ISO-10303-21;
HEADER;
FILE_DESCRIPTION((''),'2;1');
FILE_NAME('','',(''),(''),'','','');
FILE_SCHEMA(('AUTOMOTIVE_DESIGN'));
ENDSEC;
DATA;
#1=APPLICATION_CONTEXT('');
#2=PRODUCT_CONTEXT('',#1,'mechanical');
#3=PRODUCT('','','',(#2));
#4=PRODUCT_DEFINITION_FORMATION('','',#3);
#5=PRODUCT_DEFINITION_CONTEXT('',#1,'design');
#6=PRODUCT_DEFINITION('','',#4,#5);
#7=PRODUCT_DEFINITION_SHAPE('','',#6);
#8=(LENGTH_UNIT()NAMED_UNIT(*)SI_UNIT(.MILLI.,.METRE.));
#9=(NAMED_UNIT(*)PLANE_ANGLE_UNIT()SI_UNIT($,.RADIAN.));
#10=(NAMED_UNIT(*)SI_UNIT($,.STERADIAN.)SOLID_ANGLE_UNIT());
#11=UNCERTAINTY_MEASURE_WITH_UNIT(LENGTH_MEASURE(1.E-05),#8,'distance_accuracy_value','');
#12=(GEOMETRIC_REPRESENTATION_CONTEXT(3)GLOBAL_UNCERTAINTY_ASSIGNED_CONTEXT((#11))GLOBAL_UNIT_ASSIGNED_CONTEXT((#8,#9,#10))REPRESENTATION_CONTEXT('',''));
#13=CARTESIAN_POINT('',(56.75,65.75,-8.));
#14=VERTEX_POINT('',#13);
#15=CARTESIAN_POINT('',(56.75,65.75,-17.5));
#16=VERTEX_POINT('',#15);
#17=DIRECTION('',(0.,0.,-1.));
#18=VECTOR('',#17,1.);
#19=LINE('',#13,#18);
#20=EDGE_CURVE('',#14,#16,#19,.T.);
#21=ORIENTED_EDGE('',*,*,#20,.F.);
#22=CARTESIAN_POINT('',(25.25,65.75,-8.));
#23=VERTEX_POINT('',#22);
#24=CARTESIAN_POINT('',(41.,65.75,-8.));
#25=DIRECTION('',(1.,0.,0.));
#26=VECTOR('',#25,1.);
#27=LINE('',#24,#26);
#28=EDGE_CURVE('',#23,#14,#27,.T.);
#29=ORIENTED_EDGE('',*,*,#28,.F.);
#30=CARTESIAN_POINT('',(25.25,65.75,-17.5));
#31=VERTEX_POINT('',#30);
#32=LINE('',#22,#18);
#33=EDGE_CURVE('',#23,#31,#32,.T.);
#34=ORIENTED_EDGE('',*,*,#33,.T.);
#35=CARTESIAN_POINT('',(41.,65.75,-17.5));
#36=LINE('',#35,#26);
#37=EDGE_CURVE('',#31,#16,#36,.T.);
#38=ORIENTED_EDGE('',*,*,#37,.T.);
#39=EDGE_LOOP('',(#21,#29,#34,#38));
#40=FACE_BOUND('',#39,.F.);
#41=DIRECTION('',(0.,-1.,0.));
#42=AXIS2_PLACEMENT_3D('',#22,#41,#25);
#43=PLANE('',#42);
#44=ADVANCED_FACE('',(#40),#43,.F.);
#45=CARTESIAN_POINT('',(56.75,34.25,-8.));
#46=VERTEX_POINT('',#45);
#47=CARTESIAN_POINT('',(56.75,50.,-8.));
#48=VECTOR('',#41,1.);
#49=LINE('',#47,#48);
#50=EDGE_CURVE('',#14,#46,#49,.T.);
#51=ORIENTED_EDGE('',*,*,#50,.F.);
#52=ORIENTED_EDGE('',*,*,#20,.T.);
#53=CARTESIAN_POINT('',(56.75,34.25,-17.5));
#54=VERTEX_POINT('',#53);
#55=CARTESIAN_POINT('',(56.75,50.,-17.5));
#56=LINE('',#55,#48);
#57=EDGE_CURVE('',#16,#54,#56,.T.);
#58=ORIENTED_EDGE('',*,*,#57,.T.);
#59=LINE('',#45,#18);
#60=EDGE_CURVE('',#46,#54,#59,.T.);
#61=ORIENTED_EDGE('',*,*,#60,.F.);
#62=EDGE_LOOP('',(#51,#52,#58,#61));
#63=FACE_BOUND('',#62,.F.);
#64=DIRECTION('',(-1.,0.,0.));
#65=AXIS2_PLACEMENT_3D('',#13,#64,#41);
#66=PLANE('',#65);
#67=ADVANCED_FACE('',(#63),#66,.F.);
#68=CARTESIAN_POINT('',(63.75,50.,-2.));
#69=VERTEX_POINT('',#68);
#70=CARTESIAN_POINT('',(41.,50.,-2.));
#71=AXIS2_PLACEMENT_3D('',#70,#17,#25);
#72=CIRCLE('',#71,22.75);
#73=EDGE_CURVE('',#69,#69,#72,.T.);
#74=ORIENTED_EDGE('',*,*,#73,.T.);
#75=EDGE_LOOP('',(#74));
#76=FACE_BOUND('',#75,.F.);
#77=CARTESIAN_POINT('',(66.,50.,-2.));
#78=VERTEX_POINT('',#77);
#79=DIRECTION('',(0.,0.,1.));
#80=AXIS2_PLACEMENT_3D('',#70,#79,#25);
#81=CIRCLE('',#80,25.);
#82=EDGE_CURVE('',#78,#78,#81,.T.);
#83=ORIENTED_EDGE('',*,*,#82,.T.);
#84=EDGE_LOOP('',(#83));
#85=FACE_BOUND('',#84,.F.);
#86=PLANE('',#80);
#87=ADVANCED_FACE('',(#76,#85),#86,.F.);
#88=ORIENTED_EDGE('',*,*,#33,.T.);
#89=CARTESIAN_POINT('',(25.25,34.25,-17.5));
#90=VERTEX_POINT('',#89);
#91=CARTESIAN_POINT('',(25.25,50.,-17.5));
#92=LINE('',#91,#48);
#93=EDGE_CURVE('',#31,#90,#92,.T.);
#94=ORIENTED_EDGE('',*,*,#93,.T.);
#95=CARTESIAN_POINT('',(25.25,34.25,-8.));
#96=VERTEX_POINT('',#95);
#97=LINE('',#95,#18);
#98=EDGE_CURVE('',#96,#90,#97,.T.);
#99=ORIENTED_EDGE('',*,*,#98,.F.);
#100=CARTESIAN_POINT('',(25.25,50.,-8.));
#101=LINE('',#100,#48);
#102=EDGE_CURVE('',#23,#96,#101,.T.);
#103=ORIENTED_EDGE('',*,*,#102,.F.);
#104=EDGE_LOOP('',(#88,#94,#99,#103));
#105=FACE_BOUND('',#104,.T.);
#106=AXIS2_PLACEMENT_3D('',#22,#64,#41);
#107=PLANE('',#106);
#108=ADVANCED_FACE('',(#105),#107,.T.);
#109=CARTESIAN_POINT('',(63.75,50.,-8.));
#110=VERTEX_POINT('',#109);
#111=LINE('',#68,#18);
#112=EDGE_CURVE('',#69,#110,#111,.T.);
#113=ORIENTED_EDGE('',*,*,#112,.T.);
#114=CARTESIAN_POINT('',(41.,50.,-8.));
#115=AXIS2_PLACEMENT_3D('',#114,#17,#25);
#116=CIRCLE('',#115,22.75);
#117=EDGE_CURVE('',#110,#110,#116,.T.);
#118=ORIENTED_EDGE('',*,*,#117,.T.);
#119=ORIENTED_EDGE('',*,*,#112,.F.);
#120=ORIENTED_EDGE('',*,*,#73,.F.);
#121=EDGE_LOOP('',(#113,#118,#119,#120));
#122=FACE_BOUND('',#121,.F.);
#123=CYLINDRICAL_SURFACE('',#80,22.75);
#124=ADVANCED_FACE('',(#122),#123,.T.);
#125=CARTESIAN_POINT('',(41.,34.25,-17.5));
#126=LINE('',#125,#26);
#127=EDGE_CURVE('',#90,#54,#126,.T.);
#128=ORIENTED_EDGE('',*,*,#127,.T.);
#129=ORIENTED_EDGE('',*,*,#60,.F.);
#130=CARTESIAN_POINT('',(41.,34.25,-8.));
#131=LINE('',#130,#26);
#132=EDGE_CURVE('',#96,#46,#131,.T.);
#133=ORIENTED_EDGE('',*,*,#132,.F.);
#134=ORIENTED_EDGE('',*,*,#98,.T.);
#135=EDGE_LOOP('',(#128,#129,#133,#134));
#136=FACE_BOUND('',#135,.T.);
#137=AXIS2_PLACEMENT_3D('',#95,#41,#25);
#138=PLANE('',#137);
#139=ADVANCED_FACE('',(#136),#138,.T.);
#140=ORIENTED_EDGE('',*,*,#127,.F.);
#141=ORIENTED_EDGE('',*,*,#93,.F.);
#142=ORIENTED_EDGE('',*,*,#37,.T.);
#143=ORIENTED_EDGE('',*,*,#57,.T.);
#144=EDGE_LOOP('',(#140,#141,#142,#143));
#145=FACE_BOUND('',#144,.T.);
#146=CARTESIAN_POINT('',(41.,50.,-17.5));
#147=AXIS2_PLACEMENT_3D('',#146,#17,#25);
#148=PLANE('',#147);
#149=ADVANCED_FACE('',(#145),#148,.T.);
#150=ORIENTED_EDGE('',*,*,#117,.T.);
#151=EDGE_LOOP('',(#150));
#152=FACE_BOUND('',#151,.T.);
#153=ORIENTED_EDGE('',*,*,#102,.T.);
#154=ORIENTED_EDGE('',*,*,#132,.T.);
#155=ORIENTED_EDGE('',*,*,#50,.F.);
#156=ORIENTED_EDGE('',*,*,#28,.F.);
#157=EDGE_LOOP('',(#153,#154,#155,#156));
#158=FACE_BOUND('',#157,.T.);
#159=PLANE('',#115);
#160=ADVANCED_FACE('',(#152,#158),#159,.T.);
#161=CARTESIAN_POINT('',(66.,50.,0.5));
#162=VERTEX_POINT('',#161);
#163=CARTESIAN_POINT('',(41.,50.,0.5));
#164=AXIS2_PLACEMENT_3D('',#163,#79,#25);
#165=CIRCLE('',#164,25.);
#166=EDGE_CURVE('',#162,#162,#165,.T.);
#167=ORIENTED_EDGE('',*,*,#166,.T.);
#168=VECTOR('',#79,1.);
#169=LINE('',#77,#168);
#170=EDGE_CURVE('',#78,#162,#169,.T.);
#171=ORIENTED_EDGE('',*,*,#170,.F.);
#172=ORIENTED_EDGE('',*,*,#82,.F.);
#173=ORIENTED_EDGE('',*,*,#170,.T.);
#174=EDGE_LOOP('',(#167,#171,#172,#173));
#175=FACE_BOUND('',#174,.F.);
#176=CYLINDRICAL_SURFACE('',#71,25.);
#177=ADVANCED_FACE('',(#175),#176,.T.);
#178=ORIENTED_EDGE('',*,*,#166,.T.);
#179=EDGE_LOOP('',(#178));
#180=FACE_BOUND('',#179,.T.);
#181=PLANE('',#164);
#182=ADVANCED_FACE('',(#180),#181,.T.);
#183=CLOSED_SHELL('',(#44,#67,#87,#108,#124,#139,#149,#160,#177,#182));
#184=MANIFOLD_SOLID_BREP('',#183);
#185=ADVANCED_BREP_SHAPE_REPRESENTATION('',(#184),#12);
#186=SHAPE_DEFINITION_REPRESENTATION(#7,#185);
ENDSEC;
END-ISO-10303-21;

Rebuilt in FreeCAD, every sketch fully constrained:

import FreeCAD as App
import Part
import Sketcher

V = App.Vector

doc = App.newDocument("Part")
body = doc.addObject("PartDesign::Body", "Body")

sketch1 = body.newObject("Sketcher::SketchObject", "Sketch")
sketch1.AttachmentSupport = (doc.getObject("XY_Plane"), [""])
sketch1.MapMode = "FlatFace"
sketch1.addGeometry(Part.Circle(V(0, 0, 0), V(0, 0, 1), 25), False)
sketch1.addConstraint([
    Sketcher.Constraint("Coincident", 0, 3, -1, 1),
    Sketcher.Constraint("Diameter", 0, 50.0),
])
pad1 = body.newObject("PartDesign::Pad", "Pad")
pad1.Profile = sketch1
pad1.Length = 2.5

sketch2 = body.newObject("Sketcher::SketchObject", "Sketch001")
sketch2.AttachmentSupport = (doc.getObject("XY_Plane"), [""])
sketch2.MapMode = "FlatFace"
sketch2.addGeometry(Part.Circle(V(0, 0, 0), V(0, 0, 1), 23), False)
sketch2.addConstraint([
    Sketcher.Constraint("Coincident", 0, 3, -1, 1),
    Sketcher.Constraint("Diameter", 0, 45.5),
])
pad2 = body.newObject("PartDesign::Pad", "Pad001")
pad2.Profile = sketch2
pad2.Length = 6
pad2.Reversed = True

sketch3 = body.newObject("Sketcher::SketchObject", "Sketch002")
sketch3.AttachmentSupport = (doc.getObject("XY_Plane"), [""])
sketch3.MapMode = "FlatFace"
sketch3.AttachmentOffset = App.Placement(V(0, 0, -6), App.Rotation())
sketch3.addGeometry([
    Part.LineSegment(V(-16, -16, 0), V(-16, 16, 0)),
    Part.LineSegment(V(-16, 16, 0), V(16, 16, 0)),
    Part.LineSegment(V(16, 16, 0), V(16, -16, 0)),
    Part.LineSegment(V(16, -16, 0), V(-16, -16, 0)),
], False)
sketch3.addConstraint([
    Sketcher.Constraint("Coincident", 0, 2, 1, 1),
    Sketcher.Constraint("Coincident", 1, 2, 2, 1),
    Sketcher.Constraint("Coincident", 2, 2, 3, 1),
    Sketcher.Constraint("Coincident", 3, 2, 0, 1),
    Sketcher.Constraint("Vertical", 0),
    Sketcher.Constraint("Horizontal", 1),
    Sketcher.Constraint("Vertical", 2),
    Sketcher.Constraint("Horizontal", 3),
    Sketcher.Constraint("Symmetric", 0, 2, 2, 2, -1, 1),
    Sketcher.Constraint("Equal", 3, 0),
    Sketcher.Constraint("DistanceX", 1, 1, 1, 2, 31.5),
])
pad3 = body.newObject("PartDesign::Pad", "Pad002")
pad3.Profile = sketch3
pad3.Length = 9.5
pad3.Reversed = True
body2 = doc.addObject("PartDesign::Body", "Body001")
doc.recompute()

body.Placement = App.Placement(V(41, 50, -2), App.Rotation(V(0, 0, 1), 0))
boolean = body2.newObject("PartDesign::Boolean", "Boolean")
boolean.Type = "Fuse"
boolean.addObjects([body])

doc.recompute()
